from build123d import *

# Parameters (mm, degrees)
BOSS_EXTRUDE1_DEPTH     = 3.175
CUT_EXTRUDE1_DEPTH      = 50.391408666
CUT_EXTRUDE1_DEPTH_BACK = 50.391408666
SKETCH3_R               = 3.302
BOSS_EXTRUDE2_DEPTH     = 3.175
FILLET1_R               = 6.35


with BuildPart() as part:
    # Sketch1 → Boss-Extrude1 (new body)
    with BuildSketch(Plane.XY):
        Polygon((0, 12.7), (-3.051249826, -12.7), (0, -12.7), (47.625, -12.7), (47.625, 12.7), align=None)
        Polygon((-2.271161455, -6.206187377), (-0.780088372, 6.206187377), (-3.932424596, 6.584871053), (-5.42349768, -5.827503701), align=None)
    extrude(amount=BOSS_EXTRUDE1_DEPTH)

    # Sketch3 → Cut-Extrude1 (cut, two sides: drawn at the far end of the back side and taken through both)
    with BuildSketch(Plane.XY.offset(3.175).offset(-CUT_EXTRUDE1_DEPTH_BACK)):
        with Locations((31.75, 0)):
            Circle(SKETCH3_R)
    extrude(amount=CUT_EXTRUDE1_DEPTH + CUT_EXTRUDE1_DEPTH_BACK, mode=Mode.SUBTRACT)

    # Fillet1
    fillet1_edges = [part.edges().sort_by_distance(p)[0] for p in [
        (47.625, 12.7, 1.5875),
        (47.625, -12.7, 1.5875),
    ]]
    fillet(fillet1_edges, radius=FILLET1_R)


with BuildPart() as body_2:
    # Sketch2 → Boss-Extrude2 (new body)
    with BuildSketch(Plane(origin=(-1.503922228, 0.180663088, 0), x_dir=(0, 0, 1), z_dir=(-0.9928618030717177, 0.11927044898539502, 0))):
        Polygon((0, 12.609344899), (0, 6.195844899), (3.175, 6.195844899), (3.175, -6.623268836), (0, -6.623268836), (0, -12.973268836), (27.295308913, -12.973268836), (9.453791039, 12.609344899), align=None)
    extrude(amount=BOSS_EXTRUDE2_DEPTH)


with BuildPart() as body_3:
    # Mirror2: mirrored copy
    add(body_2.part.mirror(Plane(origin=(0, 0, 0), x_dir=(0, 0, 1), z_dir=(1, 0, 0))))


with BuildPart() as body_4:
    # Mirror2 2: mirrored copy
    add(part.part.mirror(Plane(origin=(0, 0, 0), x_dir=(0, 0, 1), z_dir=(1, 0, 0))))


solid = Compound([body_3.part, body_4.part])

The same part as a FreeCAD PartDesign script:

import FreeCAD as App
import Part
import Sketcher
from FreeCAD import Vector
Q = App.Units.Quantity


def edges_at(feature, points):
    """Names of the edges that pass closest to the given points."""
    edges = feature.Shape.Edges
    near = lambda p: min(range(len(edges)), key=lambda i: edges[i].distToShape(Part.Vertex(*p))[0])
    return sorted({f"Edge{near(p) + 1}" for p in points})

doc = App.newDocument("Part")
params = doc.addObject("Spreadsheet::Sheet", "Params")
for row, (alias, value) in enumerate([
    ("sketch1_height", "1 in"),
    ("sketch1_width", "1.875 in"),
    ("sketch1_length", "0.125 in"),
    ("pad1_length", "0.125 in"),
    ("sketch2_diameter", "0.26 in"),
    ("fillet_radius", "0.25 in"),
    ("sketch3_height", "0.25 in"),
    ("sketch3_width", "0.125 in"),
    ("pad2_length", "0.125 in"),
], start=1):
    params.set(f"A{row}", alias)
    params.set(f"B{row}", "=" + value)
    params.setAlias(f"B{row}", alias)

body = doc.addObject("PartDesign::Body", "Body")

sketch1 = body.newObject("Sketcher::SketchObject", "Sketch")
sketch1.AttachmentSupport = (doc.getObject("XY_Plane"), [""])
sketch1.MapMode = "FlatFace"
sketch1.addGeometry([
    Part.LineSegment(Vector(0, 12.7, 0), Vector(-0.8, 6.2, 0)),
    Part.LineSegment(Vector(-0.8, 6.2, 0), Vector(-3.9, 6.6, 0)),
    Part.LineSegment(Vector(-3.9, 6.6, 0), Vector(-5.4, -5.8, 0)),
    Part.LineSegment(Vector(-5.4, -5.8, 0), Vector(-2.3, -6.2, 0)),
    Part.LineSegment(Vector(-2.3, -6.2, 0), Vector(-3.1, -12.7, 0)),
    Part.LineSegment(Vector(-3.1, -12.7, 0), Vector(47.6, -12.7, 0)),
    Part.LineSegment(Vector(47.6, -12.7, 0), Vector(47.6, 12.7, 0)),
    Part.LineSegment(Vector(47.6, 12.7, 0), Vector(0, 12.7, 0)),
], False)
sketch1.addConstraint([
    Sketcher.Constraint("Coincident", 0, 2, 1, 1),
    Sketcher.Constraint("Coincident", 1, 2, 2, 1),
    Sketcher.Constraint("Coincident", 2, 2, 3, 1),
    Sketcher.Constraint("Coincident", 3, 2, 4, 1),
    Sketcher.Constraint("Coincident", 4, 2, 5, 1),
    Sketcher.Constraint("Coincident", 5, 2, 6, 1),
    Sketcher.Constraint("Coincident", 6, 2, 7, 1),
    Sketcher.Constraint("Coincident", 7, 2, 0, 1),
    Sketcher.Constraint("Horizontal", 5),
    Sketcher.Constraint("Vertical", 6),
    Sketcher.Constraint("Horizontal", 7),
    Sketcher.Constraint("PointOnObject", 7, 2, -2),
    Sketcher.Constraint("Perpendicular", 0, 1),
    Sketcher.Constraint("Perpendicular", 1, 2),
    Sketcher.Constraint("Perpendicular", 2, 3),
    Sketcher.Constraint("Perpendicular", 3, 4),
    Sketcher.Constraint("Equal", 1, 3),
    Sketcher.Constraint("Equal", 0, 4),
    Sketcher.Constraint("DistanceY", 6, 1, 6, 2, Q("1 in")),
    Sketcher.Constraint("DistanceY", 4, 2, -1, 1, Q("0.5 in")),
    Sketcher.Constraint("DistanceX", 7, 2, 7, 1, Q("1.875 in")),
    Sketcher.Constraint("Angle", 0, Q("-96.85 deg")),
    Sketcher.Constraint("Distance", 1, Q("0.125 in")),
    Sketcher.Constraint("Distance", 0, Q("0.2575 in")),
])
sketch1.setExpression("Constraints[18]", "Params.sketch1_height")
sketch1.setExpression("Constraints[20]", "Params.sketch1_width")
sketch1.setExpression("Constraints[22]", "Params.sketch1_length")
pad1 = body.newObject("PartDesign::Pad", "Pad")
pad1.Profile = sketch1
pad1.setExpression("Length", "Params.pad1_length")

sketch2 = body.newObject("Sketcher::SketchObject", "Sketch001")
sketch2.AttachmentSupport = (doc.getObject("XY_Plane"), [""])
sketch2.MapMode = "FlatFace"
sketch2.AttachmentOffset = App.Placement(Vector(0, 0, 0.125 * 25.4), App.Rotation())
sketch2.addGeometry(Part.Circle(Vector(31.8, 0, 0), Vector(0, 0, 1), 3.3), False)
sketch2.addConstraint([
    Sketcher.Constraint("PointOnObject", 0, 3, -1),
    Sketcher.Constraint("Diameter", 0, Q("0.26 in")),
    Sketcher.Constraint("DistanceX", -1, 1, 0, 3, Q("1.25 in")),
])
sketch2.setExpression("Constraints[1]", "Params.sketch2_diameter")
pocket1 = body.newObject("PartDesign::Pocket", "Pocket")
pocket1.Profile = sketch2
pocket1.Type = "ThroughAll"
pocket1.Midplane = True
doc.recompute()

fillet = body.newObject("PartDesign::Fillet", "Fillet")
fillet.Base = (pocket1, edges_at(pocket1, [(47.625, 12.7, 1.587), (47.625, -12.7, 1.587)]))
fillet.setExpression("Radius", "Params.fillet_radius")
body2 = doc.addObject("PartDesign::Body", "Body001")

sketch3 = body2.newObject("Sketcher::SketchObject", "Sketch002")
sketch3.Placement = App.Placement(Vector(-1.503922, 0.180663, 0), App.Rotation(Vector(0, 0, 1), Vector(0.119270449, 0.992861803, 0), Vector(-0.992861803, 0.119270449, 0), "ZXY"))
sketch3.addGeometry([
    Part.LineSegment(Vector(0, 12.6, 0), Vector(0, 6.2, 0)),
    Part.LineSegment(Vector(0, 6.2, 0), Vector(3.2, 6.2, 0)),
    Part.LineSegment(Vector(3.2, 6.2, 0), Vector(3.2, -6.6, 0)),
    Part.LineSegment(Vector(3.2, -6.6, 0), Vector(0, -6.6, 0)),
    Part.LineSegment(Vector(0, -6.6, 0), Vector(0, -13, 0)),
    Part.LineSegment(Vector(0, -13, 0), Vector(27.3, -13, 0)),
    Part.LineSegment(Vector(27.3, -13, 0), Vector(9.5, 12.6, 0)),
    Part.LineSegment(Vector(9.5, 12.6, 0), Vector(0, 12.6, 0)),
], False)
sketch3.addConstraint([
    Sketcher.Constraint("Coincident", 0, 2, 1, 1),
    Sketcher.Constraint("Coincident", 1, 2, 2, 1),
    Sketcher.Constraint("Coincident", 2, 2, 3, 1),
    Sketcher.Constraint("Coincident", 3, 2, 4, 1),
    Sketcher.Constraint("Coincident", 4, 2, 5, 1),
    Sketcher.Constraint("Coincident", 5, 2, 6, 1),
    Sketcher.Constraint("Coincident", 6, 2, 7, 1),
    Sketcher.Constraint("Coincident", 7, 2, 0, 1),
    Sketcher.Constraint("Vertical", 0),
    Sketcher.Constraint("Horizontal", 1),
    Sketcher.Constraint("Vertical", 2),
    Sketcher.Constraint("Horizontal", 3),
    Sketcher.Constraint("Vertical", 4),
    Sketcher.Constraint("Horizontal", 5),
    Sketcher.Constraint("Horizontal", 7),
    Sketcher.Constraint("PointOnObject", 0, 2, -2),
    Sketcher.Constraint("PointOnObject", 3, 2, -2),
    Sketcher.Constraint("DistanceY", 4, 2, 4, 1, Q("0.25 in")),
    Sketcher.Constraint("DistanceX", 1, 1, 1, 2, Q("0.125 in")),
    Sketcher.Constraint("DistanceY", 0, 2, 0, 1, Q("0.2525 in")),
    Sketcher.Constraint("DistanceX", 5, 1, 5, 2, Q("27.295309 mm")),
    Sketcher.Constraint("DistanceX", 7, 2, 7, 1, Q("9.453791 mm")),
    Sketcher.Constraint("Distance", 6, Q("31.18958 mm")),
    Sketcher.Constraint("DistanceY", 2, 2, -1, 1, Q("6.623269 mm")),
])
sketch3.setExpression("Constraints[17]", "Params.sketch3_height")
sketch3.setExpression("Constraints[18]", "Params.sketch3_width")
pad2 = body2.newObject("PartDesign::Pad", "Pad001")
pad2.Profile = sketch3
pad2.setExpression("Length", "Params.pad2_length")
body3 = doc.addObject("PartDesign::Body", "Body002")
doc.recompute()

mirroring = doc.addObject("Part::Mirroring", "Mirroring")
mirroring.Source = body2
mirroring.Base = Vector(0, 0, 0)
mirroring.Normal = Vector(1, 0, 0)
body3.BaseFeature = mirroring
doc.recompute()
body4 = doc.addObject("PartDesign::Body", "Body003")
doc.recompute()

mirroring2 = doc.addObject("Part::Mirroring", "Mirroring001")
mirroring2.Source = body
mirroring2.Base = Vector(0, 0, 0)
mirroring2.Normal = Vector(1, 0, 0)
body4.BaseFeature = mirroring2
doc.recompute()
body.Visibility = False
body2.Visibility = False
mirroring.Visibility = False
mirroring2.Visibility = False

doc.recompute()
